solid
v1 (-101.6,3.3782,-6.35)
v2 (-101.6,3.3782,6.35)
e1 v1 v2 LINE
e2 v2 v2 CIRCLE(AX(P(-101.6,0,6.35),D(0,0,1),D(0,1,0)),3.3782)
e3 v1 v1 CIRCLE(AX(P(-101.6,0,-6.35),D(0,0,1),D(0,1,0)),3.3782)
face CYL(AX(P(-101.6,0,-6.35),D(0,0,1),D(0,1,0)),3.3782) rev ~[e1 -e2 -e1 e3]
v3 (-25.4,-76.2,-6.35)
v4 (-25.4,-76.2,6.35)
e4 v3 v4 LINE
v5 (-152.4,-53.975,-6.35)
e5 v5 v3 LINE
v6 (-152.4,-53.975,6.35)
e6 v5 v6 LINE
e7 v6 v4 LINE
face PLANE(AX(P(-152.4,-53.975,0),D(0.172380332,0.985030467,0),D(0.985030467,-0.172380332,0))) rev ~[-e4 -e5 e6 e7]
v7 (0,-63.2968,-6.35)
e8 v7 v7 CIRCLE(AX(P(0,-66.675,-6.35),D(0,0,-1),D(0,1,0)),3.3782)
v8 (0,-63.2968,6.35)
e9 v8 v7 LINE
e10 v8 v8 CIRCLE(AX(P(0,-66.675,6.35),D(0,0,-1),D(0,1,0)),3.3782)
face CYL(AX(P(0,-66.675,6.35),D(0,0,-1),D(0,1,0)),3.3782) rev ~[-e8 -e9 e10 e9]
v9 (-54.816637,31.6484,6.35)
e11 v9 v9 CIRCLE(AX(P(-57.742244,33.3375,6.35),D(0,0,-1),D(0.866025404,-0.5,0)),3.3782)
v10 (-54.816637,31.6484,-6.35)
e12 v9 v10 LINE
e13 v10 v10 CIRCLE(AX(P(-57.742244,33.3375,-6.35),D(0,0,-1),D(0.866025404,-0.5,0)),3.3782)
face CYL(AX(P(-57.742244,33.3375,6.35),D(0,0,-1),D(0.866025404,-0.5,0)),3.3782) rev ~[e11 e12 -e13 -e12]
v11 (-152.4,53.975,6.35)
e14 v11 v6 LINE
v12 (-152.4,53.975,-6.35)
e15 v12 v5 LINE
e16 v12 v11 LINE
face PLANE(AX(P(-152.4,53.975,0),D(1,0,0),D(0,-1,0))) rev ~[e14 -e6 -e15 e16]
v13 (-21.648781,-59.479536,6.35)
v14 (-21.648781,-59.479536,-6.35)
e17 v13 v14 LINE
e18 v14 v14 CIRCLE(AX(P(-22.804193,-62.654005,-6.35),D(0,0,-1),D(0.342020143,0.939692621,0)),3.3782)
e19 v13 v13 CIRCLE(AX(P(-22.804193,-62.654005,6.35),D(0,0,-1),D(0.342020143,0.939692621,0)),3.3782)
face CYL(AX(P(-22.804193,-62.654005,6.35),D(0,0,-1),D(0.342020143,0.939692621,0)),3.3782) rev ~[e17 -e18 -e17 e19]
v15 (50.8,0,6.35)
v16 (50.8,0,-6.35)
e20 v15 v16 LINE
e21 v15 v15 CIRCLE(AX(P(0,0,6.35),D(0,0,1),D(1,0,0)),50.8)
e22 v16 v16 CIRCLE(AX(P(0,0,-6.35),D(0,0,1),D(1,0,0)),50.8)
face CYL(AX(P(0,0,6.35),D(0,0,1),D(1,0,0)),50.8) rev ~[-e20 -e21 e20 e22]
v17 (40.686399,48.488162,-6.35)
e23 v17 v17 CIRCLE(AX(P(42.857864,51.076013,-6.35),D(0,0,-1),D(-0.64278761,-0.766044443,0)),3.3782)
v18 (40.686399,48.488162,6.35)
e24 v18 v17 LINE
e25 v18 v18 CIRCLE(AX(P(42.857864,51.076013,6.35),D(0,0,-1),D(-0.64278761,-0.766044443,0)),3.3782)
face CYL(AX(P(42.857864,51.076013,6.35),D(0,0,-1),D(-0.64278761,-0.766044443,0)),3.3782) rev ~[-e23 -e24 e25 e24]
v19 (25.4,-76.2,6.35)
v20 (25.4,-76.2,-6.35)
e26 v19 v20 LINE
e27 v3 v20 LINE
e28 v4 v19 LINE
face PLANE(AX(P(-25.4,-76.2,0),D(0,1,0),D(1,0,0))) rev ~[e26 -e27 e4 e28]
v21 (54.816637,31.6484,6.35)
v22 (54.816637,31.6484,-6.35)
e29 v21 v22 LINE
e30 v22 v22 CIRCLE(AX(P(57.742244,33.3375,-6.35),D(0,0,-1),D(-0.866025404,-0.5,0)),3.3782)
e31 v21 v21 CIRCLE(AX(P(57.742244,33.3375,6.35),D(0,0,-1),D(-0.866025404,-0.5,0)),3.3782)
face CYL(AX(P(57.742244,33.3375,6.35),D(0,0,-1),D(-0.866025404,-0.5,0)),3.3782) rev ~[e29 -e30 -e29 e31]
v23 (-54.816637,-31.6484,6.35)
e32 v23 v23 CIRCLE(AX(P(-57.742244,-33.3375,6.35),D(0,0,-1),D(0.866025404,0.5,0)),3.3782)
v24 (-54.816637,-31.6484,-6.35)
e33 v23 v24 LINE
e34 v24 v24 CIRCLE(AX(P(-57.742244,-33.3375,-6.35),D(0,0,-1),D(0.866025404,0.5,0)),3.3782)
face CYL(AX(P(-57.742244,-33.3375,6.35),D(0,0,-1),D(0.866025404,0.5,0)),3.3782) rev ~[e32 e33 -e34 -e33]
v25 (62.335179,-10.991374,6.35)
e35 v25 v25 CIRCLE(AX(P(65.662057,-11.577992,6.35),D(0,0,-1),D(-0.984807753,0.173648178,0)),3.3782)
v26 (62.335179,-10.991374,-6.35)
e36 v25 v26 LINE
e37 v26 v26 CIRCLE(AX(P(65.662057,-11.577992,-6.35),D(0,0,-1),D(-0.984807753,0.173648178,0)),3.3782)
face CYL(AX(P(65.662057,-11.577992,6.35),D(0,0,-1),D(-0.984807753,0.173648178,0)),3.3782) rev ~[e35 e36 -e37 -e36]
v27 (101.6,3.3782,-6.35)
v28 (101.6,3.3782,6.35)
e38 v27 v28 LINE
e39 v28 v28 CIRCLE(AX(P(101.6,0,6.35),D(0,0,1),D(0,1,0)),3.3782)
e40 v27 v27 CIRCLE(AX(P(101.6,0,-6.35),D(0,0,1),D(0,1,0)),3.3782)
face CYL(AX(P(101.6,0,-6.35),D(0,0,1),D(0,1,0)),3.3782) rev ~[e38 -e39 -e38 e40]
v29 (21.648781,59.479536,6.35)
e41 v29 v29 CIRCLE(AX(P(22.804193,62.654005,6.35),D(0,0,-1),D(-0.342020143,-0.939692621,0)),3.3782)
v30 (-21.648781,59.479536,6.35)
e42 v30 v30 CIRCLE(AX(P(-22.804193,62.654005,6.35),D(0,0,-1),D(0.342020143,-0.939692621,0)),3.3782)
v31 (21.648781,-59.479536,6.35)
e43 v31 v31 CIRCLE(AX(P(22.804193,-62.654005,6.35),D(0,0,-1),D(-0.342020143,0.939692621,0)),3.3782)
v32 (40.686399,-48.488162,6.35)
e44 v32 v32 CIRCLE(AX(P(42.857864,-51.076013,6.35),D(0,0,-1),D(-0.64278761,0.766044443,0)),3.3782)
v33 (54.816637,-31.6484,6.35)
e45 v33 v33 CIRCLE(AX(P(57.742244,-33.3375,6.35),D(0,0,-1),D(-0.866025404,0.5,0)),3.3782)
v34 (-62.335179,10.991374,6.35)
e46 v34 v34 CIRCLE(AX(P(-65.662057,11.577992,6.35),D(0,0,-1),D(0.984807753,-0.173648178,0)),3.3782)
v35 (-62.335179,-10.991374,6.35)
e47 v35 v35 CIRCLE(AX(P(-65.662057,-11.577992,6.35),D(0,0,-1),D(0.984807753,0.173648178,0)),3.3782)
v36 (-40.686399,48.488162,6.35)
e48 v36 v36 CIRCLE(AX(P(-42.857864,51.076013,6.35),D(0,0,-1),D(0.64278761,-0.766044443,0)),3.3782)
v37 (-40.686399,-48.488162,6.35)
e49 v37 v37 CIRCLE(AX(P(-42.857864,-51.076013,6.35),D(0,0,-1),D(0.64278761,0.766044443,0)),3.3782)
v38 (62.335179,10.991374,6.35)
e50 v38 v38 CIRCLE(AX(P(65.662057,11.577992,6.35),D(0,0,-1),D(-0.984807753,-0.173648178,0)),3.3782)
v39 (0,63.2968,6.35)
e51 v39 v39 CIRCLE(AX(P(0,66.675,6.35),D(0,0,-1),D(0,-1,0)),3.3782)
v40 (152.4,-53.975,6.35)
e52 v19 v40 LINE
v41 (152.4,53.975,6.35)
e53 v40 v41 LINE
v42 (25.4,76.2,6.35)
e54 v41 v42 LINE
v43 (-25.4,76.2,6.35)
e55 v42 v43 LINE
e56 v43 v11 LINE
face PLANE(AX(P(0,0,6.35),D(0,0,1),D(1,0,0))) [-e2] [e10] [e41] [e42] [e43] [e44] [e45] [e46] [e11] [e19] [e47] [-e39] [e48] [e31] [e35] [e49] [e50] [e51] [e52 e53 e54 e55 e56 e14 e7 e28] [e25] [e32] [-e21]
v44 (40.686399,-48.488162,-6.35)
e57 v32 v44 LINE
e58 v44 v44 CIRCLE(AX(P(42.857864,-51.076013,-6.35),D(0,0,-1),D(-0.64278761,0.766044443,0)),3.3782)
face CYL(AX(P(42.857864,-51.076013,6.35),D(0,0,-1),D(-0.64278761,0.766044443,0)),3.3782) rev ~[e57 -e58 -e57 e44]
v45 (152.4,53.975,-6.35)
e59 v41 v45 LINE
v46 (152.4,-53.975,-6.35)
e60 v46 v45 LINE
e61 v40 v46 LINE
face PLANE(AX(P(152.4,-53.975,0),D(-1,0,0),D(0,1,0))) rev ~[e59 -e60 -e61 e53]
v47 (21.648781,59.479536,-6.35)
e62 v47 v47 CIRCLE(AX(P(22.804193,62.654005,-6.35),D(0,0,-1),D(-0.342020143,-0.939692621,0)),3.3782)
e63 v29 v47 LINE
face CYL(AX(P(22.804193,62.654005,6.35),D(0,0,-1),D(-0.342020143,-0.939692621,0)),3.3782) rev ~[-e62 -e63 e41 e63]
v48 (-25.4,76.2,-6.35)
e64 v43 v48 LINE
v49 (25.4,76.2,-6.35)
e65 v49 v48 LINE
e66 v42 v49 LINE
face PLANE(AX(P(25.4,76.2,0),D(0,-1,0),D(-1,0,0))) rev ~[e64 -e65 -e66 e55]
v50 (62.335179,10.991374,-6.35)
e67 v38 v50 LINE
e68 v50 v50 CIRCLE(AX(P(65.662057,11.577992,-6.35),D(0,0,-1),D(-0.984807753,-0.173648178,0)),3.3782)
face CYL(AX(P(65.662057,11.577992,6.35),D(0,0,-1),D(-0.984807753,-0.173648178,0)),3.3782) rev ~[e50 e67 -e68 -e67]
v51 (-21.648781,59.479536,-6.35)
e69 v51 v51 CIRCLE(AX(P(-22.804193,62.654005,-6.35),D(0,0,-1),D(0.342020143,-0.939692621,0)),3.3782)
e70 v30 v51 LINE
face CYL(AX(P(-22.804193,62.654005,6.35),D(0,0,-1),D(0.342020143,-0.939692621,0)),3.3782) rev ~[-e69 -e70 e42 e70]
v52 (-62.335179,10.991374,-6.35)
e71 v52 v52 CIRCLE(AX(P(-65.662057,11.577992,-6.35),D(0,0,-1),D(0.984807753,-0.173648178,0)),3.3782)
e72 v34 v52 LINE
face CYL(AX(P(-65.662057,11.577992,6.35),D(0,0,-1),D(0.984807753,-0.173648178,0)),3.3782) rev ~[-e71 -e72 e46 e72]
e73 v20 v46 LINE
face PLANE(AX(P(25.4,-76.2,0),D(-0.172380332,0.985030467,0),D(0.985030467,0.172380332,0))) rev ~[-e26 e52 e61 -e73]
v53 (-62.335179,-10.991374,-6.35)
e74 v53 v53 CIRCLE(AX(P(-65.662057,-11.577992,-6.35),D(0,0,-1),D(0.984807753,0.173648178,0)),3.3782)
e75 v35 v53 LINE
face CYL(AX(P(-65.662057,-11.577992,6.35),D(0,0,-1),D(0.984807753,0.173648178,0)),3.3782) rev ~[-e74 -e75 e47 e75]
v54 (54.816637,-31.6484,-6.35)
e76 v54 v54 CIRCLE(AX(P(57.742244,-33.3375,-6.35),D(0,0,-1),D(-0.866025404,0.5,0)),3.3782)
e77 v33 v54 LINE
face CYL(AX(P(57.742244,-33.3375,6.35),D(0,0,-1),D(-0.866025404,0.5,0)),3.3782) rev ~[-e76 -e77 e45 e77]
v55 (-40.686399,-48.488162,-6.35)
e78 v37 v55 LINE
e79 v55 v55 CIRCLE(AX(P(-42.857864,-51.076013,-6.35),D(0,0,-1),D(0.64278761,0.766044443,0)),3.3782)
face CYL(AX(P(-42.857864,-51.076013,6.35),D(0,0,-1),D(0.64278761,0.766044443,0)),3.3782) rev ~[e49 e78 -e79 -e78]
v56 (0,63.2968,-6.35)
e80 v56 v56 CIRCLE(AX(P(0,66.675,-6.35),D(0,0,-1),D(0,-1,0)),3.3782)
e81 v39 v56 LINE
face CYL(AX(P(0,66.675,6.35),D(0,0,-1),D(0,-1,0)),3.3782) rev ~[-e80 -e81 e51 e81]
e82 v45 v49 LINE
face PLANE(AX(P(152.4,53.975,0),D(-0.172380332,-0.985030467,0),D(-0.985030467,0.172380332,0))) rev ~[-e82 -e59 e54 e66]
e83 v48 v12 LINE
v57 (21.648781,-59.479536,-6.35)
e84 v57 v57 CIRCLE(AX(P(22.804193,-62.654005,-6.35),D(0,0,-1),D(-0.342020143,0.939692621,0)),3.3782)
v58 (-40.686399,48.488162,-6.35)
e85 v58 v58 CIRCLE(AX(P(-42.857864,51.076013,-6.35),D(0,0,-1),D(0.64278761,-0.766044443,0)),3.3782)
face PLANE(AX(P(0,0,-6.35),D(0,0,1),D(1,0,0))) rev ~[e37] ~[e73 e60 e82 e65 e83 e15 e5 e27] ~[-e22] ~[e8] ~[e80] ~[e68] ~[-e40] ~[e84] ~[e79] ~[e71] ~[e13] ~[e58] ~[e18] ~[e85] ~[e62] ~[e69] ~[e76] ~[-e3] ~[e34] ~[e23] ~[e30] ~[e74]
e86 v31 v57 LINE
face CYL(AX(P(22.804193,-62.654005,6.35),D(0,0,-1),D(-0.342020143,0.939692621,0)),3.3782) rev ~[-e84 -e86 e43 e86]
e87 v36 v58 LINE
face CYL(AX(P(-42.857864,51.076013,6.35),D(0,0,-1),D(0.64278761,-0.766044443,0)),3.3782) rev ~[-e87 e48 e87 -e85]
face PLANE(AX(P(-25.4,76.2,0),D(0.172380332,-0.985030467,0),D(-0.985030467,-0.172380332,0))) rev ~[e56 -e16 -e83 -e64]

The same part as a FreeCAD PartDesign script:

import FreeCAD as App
import Part
import Sketcher
from FreeCAD import Vector
Q = App.Units.Quantity

doc = App.newDocument("Part")
body = doc.addObject("PartDesign::Body", "Body")

# Sketch on XY plane
sketch1 = doc.addObject("Sketcher::SketchObject", "Sketch")
body.addObject(sketch1)
sketch1.AttachmentSupport = (doc.XY_Plane, [""])
sketch1.MapMode = "FlatFace"
sketch1.addGeometry(Part.LineSegment(Vector(-25.4, 76.2, 0), Vector(-152.4, 53.975, 0)), False)
sketch1.addGeometry(Part.LineSegment(Vector(-152.4, 53.975, 0), Vector(-152.4, -53.975, 0)), False)
sketch1.addGeometry(Part.LineSegment(Vector(-152.4, -53.975, 0), Vector(-25.4, -76.2, 0)), False)
sketch1.addGeometry(Part.LineSegment(Vector(-25.4, -76.2, 0), Vector(25.4, -76.2, 0)), False)
sketch1.addGeometry(Part.LineSegment(Vector(25.4, -76.2, 0), Vector(152.4, -53.975, 0)), False)
sketch1.addGeometry(Part.LineSegment(Vector(152.4, -53.975, 0), Vector(152.4, 53.975, 0)), False)
sketch1.addGeometry(Part.LineSegment(Vector(152.4, 53.975, 0), Vector(25.4, 76.2, 0)), False)
sketch1.addGeometry(Part.LineSegment(Vector(25.4, 76.2, 0), Vector(-25.4, 76.2, 0)), False)
sketch1.addConstraint(Sketcher.Constraint("Coincident", 0, 2, 1, 1))
sketch1.addConstraint(Sketcher.Constraint("Coincident", 1, 2, 2, 1))
sketch1.addConstraint(Sketcher.Constraint("Coincident", 2, 2, 3, 1))
sketch1.addConstraint(Sketcher.Constraint("Coincident", 3, 2, 4, 1))
sketch1.addConstraint(Sketcher.Constraint("Coincident", 4, 2, 5, 1))
sketch1.addConstraint(Sketcher.Constraint("Coincident", 5, 2, 6, 1))
sketch1.addConstraint(Sketcher.Constraint("Coincident", 6, 2, 7, 1))
sketch1.addConstraint(Sketcher.Constraint("Coincident", 7, 2, 0, 1))
sketch1.addConstraint(Sketcher.Constraint("Vertical", 1))
sketch1.addConstraint(Sketcher.Constraint("Horizontal", 3))
sketch1.addConstraint(Sketcher.Constraint("Vertical", 5))
sketch1.addConstraint(Sketcher.Constraint("Horizontal", 7))
sketch1.addConstraint(Sketcher.Constraint("Symmetric", 0, 2, 4, 2, -1, 1))
sketch1.addConstraint(Sketcher.Constraint("Symmetric", 2, 2, 6, 2, -1, 1))
sketch1.addConstraint(Sketcher.Constraint("Parallel", 0, 4))
sketch1.addConstraint(Sketcher.Constraint("Parallel", 2, 6))
sketch1.addConstraint(Sketcher.Constraint("Horizontal", 1, 2, 4, 2))
sketch1.addConstraint(Sketcher.Constraint("Vertical", 3, 2, 6, 2))
sketch1.addConstraint(Sketcher.Constraint("DistanceX", 3, 1, 3, 2, Q("2 in")))
sketch1.addConstraint(Sketcher.Constraint("DistanceX", 0, 2, -1, 1, Q("6 in")))
sketch1.addConstraint(Sketcher.Constraint("DistanceY", 2, 2, -1, 1, Q("3 in")))
sketch1.addConstraint(Sketcher.Constraint("DistanceY", 1, 2, 1, 1, Q("4.25 in")))
pad1 = doc.addObject("PartDesign::Pad", "Pad")
body.addObject(pad1)
pad1.Profile = sketch1
pad1.Length = Q("0.5 in")
pad1.Midplane = True

# Sketch on XY plane
sketch2 = doc.addObject("Sketcher::SketchObject", "Sketch001")
body.addObject(sketch2)
sketch2.AttachmentSupport = (doc.XY_Plane, [""])
sketch2.MapMode = "FlatFace"
sketch2.AttachmentOffset = App.Placement(Vector(0, 0, 0.25 * 25.4), App.Rotation())
sketch2.addGeometry(Part.Circle(Vector(0, 0, 0), Vector(0, 0, 1), 50.8), False)
sketch2.addConstraint(Sketcher.Constraint("Coincident", 0, 3, -1, 1))
sketch2.addConstraint(Sketcher.Constraint("Diameter", 0, Q("4 in")))
pocket1 = doc.addObject("PartDesign::Pocket", "Pocket")
body.addObject(pocket1)
pocket1.Profile = sketch2
pocket1.Type = "ThroughAll"

# Sketch on XY plane
sketch3 = doc.addObject("Sketcher::SketchObject", "Sketch002")
body.addObject(sketch3)
sketch3.AttachmentSupport = (doc.XY_Plane, [""])
sketch3.MapMode = "FlatFace"
sketch3.AttachmentOffset = App.Placement(Vector(0, 0, 0.25 * 25.4), App.Rotation())
sketch3.addGeometry(Part.Circle(Vector(0, 66.675, 0), Vector(0, 0, 1), 3.3782), False)
sketch3.addConstraint(Sketcher.Constraint("PointOnObject", 0, 3, -2))
sketch3.addConstraint(Sketcher.Constraint("Diameter", 0, Q("0.266 in")))
sketch3.addConstraint(Sketcher.Constraint("DistanceY", -1, 1, 0, 3, Q("2.625 in")))
doc.recompute()
hole = doc.addObject("PartDesign::Hole", "Hole")
body.addObject(hole)
hole.Profile = sketch3
hole.ThreadType = "None"
hole.Diameter = Q("0.266 in")
hole.DepthType = "ThroughAll"
doc.recompute()

polarpattern = doc.addObject("PartDesign::PolarPattern", "PolarPattern")
body.addObject(polarpattern)
polarpattern.Originals = [hole]
polarpattern.Axis = (doc.Z_Axis, [""])
polarpattern.Angle = 360
polarpattern.Occurrences = 18
body.Tip = polarpattern

# Sketch on XY plane
sketch4 = doc.addObject("Sketcher::SketchObject", "Sketch003")
body.addObject(sketch4)
sketch4.AttachmentSupport = (doc.XY_Plane, [""])
sketch4.MapMode = "FlatFace"
sketch4.AttachmentOffset = App.Placement(Vector(0, 0, -0.25 * 25.4), App.Rotation())
sketch4.addGeometry(Part.Circle(Vector(101.6, 0, 0), Vector(0, 0, 1), 3.3782), False)
sketch4.addGeometry(Part.Circle(Vector(-101.6, 0, 0), Vector(0, 0, 1), 3.3782), False)
sketch4.addConstraint(Sketcher.Constraint("Equal", 0, 1))
sketch4.addConstraint(Sketcher.Constraint("Symmetric", 0, 3, 1, 3, -1, 1))
sketch4.addConstraint(Sketcher.Constraint("PointOnObject", 0, 3, -1))
sketch4.addConstraint(Sketcher.Constraint("Diameter", 0, Q("0.266 in")))
sketch4.addConstraint(Sketcher.Constraint("DistanceX", -1, 1, 0, 3, Q("4 in")))
doc.recompute()
hole2 = doc.addObject("PartDesign::Hole", "Hole001")
body.addObject(hole2)
hole2.Profile = sketch4
hole2.ThreadType = "None"
hole2.Diameter = Q("0.266 in")
hole2.DepthType = "ThroughAll"
hole2.Reversed = True

doc.recompute()
